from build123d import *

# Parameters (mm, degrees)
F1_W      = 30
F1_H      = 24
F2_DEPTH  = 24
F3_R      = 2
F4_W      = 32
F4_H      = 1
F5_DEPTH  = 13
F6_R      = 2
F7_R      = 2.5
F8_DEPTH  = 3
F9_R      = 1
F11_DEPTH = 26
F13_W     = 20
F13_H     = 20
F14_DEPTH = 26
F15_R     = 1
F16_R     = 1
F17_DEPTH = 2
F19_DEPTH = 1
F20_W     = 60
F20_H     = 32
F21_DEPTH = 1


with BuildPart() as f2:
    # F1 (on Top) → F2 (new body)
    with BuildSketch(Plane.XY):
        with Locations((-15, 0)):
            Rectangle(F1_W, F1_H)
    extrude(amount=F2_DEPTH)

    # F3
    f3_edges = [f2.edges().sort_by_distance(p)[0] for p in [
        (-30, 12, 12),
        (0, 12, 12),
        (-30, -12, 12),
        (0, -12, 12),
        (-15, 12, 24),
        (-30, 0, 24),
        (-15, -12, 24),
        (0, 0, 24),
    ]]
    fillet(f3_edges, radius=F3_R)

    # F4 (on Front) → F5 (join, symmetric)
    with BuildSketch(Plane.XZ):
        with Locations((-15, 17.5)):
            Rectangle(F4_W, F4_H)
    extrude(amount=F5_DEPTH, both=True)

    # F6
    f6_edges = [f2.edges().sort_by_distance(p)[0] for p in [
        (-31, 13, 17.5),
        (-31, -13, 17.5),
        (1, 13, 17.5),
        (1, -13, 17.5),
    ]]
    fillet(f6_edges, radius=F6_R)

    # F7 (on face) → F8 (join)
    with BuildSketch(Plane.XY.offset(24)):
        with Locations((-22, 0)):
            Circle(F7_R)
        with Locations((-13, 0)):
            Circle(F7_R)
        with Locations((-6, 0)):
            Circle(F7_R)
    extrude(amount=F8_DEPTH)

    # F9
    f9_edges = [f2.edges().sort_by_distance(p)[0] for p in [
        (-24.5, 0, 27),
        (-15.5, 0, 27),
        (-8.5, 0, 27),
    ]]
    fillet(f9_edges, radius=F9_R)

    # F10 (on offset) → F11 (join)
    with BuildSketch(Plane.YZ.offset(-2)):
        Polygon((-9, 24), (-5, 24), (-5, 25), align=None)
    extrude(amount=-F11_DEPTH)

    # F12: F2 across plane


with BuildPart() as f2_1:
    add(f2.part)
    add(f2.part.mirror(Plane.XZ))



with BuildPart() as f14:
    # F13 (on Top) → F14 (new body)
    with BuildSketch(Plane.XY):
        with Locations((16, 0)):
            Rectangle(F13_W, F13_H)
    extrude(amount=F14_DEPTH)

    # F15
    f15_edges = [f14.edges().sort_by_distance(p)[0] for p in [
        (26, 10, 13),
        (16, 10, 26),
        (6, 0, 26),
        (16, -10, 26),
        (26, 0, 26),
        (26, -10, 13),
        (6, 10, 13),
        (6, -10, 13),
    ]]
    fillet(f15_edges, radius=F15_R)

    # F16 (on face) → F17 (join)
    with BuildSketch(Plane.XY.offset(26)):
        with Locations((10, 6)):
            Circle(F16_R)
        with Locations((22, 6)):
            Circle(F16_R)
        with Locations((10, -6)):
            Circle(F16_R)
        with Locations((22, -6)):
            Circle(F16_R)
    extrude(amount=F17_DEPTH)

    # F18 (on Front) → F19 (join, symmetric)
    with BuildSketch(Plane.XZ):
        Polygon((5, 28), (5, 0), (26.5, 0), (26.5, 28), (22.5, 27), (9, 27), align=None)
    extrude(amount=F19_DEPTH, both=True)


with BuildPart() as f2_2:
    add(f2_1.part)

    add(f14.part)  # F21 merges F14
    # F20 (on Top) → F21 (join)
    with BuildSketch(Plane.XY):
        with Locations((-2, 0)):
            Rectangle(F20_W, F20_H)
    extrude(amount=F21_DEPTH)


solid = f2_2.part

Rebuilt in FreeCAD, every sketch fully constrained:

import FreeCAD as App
import Part
import Sketcher

V = App.Vector
Q = App.Units.Quantity


def edges_at(feature, points):
    """Names of the edges that pass closest to the given points."""
    edges = feature.Shape.Edges
    near = lambda p: min(range(len(edges)), key=lambda i: edges[i].distToShape(Part.Vertex(*p))[0])
    return sorted({f"Edge{near(p) + 1}" for p in points})


def add_polygon(sketch, points):
    """Adds a closed chain of lines whose ends are joined by coincident constraints."""
    first, n = sketch.GeometryCount, len(points)
    for a, b in zip(points, points[1:] + points[:1]):
        sketch.addGeometry(Part.LineSegment(App.Vector(*a, 0), App.Vector(*b, 0)), False)
    for i in range(n):
        sketch.addConstraint(Sketcher.Constraint("Coincident", first + i, 2, first + (i + 1) % n, 1))

doc = App.newDocument("Part")
body = doc.addObject("PartDesign::Body", "Body")

# Sketch on XY plane
sketch1 = doc.addObject("Sketcher::SketchObject", "Sketch")
body.addObject(sketch1)
sketch1.AttachmentSupport = (doc.XY_Plane, [""])
sketch1.MapMode = "FlatFace"
add_polygon(sketch1, [(-30, 12), (-30, -12), (0, -12), (0, 12)])  # lines 0-3
sketch1.addConstraint(Sketcher.Constraint("Vertical", 0))
sketch1.addConstraint(Sketcher.Constraint("Horizontal", 1))
sketch1.addConstraint(Sketcher.Constraint("Vertical", 2))
sketch1.addConstraint(Sketcher.Constraint("Horizontal", 3))
sketch1.addConstraint(Sketcher.Constraint("Symmetric", 1, 2, 2, 2, -1, 1))
sketch1.addConstraint(Sketcher.Constraint("DistanceX", 1, 1, 1, 2, Q("30 mm")))
sketch1.addConstraint(Sketcher.Constraint("DistanceY", 0, 2, 0, 1, Q("24 mm")))
pad1 = doc.addObject("PartDesign::Pad", "Pad")
body.addObject(pad1)
pad1.Profile = sketch1
pad1.Length = 24
doc.recompute()

fillet = doc.addObject("PartDesign::Fillet", "Fillet")
body.addObject(fillet)
fillet.Base = (pad1, edges_at(pad1, [
    (-30, 12, 12),
    (0, 12, 12),
    (-30, -12, 12),
    (0, -12, 12),
    (-15, 12, 24),
    (-30, 0, 24),
    (-15, -12, 24),
    (0, 0, 24),
]))
fillet.Radius = 2

# Sketch on XZ plane
sketch2 = doc.addObject("Sketcher::SketchObject", "Sketch001")
body.addObject(sketch2)
sketch2.AttachmentSupport = (doc.XZ_Plane, [""])
sketch2.MapMode = "FlatFace"
add_polygon(sketch2, [(-31, 18), (-31, 17), (1, 17), (1, 18)])  # lines 0-3
sketch2.addConstraint(Sketcher.Constraint("Vertical", 0))
sketch2.addConstraint(Sketcher.Constraint("Horizontal", 1))
sketch2.addConstraint(Sketcher.Constraint("Vertical", 2))
sketch2.addConstraint(Sketcher.Constraint("Horizontal", 3))
sketch2.addConstraint(Sketcher.Constraint("DistanceX", 1, 1, 1, 2, Q("32 mm")))
sketch2.addConstraint(Sketcher.Constraint("DistanceY", 0, 2, 0, 1, Q("1 mm")))
sketch2.addConstraint(Sketcher.Constraint("DistanceX", 0, 2, -1, 1, Q("31 mm")))
sketch2.addConstraint(Sketcher.Constraint("DistanceY", -1, 1, 0, 2, Q("17 mm")))
pad2 = doc.addObject("PartDesign::Pad", "Pad001")
body.addObject(pad2)
pad2.Profile = sketch2
pad2.Length = 26
pad2.Midplane = True
doc.recompute()

fillet2 = doc.addObject("PartDesign::Fillet", "Fillet001")
body.addObject(fillet2)
fillet2.Base = (pad2, edges_at(pad2, [
    (-31, 13, 17.5),
    (-31, -13, 17.5),
    (1, 13, 17.5),
    (1, -13, 17.5),
]))
fillet2.Radius = 2

# Sketch on XY plane
sketch3 = doc.addObject("Sketcher::SketchObject", "Sketch002")
body.addObject(sketch3)
sketch3.AttachmentSupport = (doc.XY_Plane, [""])
sketch3.MapMode = "FlatFace"
sketch3.AttachmentOffset = App.Placement(V(0, 0, 24), App.Rotation())
sketch3.addGeometry(Part.Circle(V(-22, 0, 0), V(0, 0, 1), 2.5), False)
sketch3.addGeometry(Part.Circle(V(-13, 0, 0), V(0, 0, 1), 2.5), False)
sketch3.addGeometry(Part.Circle(V(-6, 0, 0), V(0, 0, 1), 2.5), False)
sketch3.addConstraint(Sketcher.Constraint("Equal", 0, 1))
sketch3.addConstraint(Sketcher.Constraint("Equal", 1, 2))
sketch3.addConstraint(Sketcher.Constraint("PointOnObject", 0, 3, -1))
sketch3.addConstraint(Sketcher.Constraint("PointOnObject", 1, 3, -1))
sketch3.addConstraint(Sketcher.Constraint("PointOnObject", 2, 3, -1))
sketch3.addConstraint(Sketcher.Constraint("Diameter", 0, Q("5 mm")))
sketch3.addConstraint(Sketcher.Constraint("DistanceX", 0, 3, -1, 1, Q("22 mm")))
sketch3.addConstraint(Sketcher.Constraint("DistanceX", 1, 3, -1, 1, Q("13 mm")))
sketch3.addConstraint(Sketcher.Constraint("DistanceX", 2, 3, -1, 1, Q("6 mm")))
pad3 = doc.addObject("PartDesign::Pad", "Pad002")
body.addObject(pad3)
pad3.Profile = sketch3
pad3.Length = 3
doc.recompute()

fillet3 = doc.addObject("PartDesign::Fillet", "Fillet002")
body.addObject(fillet3)
fillet3.Base = (pad3, edges_at(pad3, [(-24.5, 0, 27), (-15.5, 0, 27), (-8.5, 0, 27)]))
fillet3.Radius = 1

# Sketch on YZ plane
sketch4 = doc.addObject("Sketcher::SketchObject", "Sketch003")
body.addObject(sketch4)
sketch4.AttachmentSupport = (doc.YZ_Plane, [""])
sketch4.MapMode = "FlatFace"
sketch4.AttachmentOffset = App.Placement(V(0, 0, -2), App.Rotation())
add_polygon(sketch4, [(-9, 24), (-5, 24), (-5, 25)])  # lines 0-2
sketch4.addConstraint(Sketcher.Constraint("Horizontal", 0))
sketch4.addConstraint(Sketcher.Constraint("Vertical", 1))
sketch4.addConstraint(Sketcher.Constraint("DistanceX", 0, 1, 0, 2, Q("4 mm")))
sketch4.addConstraint(Sketcher.Constraint("DistanceY", 1, 1, 1, 2, Q("1 mm")))
sketch4.addConstraint(Sketcher.Constraint("DistanceX", 0, 2, -1, 1, Q("5 mm")))
sketch4.addConstraint(Sketcher.Constraint("DistanceY", -1, 1, 0, 2, Q("24 mm")))
pad4 = doc.addObject("PartDesign::Pad", "Pad003")
body.addObject(pad4)
pad4.Profile = sketch4
pad4.Length = 26
pad4.Reversed = True
body2 = doc.addObject("PartDesign::Body", "Body001")
doc.recompute()

body2.BaseFeature = body
doc.recompute()

mirroring = doc.addObject("Part::Mirroring", "Mirroring")
mirroring.Source = body
mirroring.Base = V(0, 0, 0)
mirroring.Normal = V(0, -1, 0)
body3 = doc.addObject("PartDesign::Body", "Body002")
body3.BaseFeature = mirroring
boolean = doc.addObject("PartDesign::Boolean", "Boolean")
body2.addObject(boolean)
boolean.Type = "Fuse"
boolean.addObjects([body3])
doc.recompute()
body4 = doc.addObject("PartDesign::Body", "Body003")

# Sketch on XY plane
sketch5 = doc.addObject("Sketcher::SketchObject", "Sketch004")
body4.addObject(sketch5)
sketch5.AttachmentSupport = (doc.getObject("XY_Plane003"), [""])
sketch5.MapMode = "FlatFace"
add_polygon(sketch5, [(6, 10), (6, -10), (26, -10), (26, 10)])  # lines 0-3
sketch5.addConstraint(Sketcher.Constraint("Vertical", 0))
sketch5.addConstraint(Sketcher.Constraint("Horizontal", 1))
sketch5.addConstraint(Sketcher.Constraint("Vertical", 2))
sketch5.addConstraint(Sketcher.Constraint("Horizontal", 3))
sketch5.addConstraint(Sketcher.Constraint("Equal", 3, 0))
sketch5.addConstraint(Sketcher.Constraint("DistanceX", 1, 1, 1, 2, Q("20 mm")))
sketch5.addConstraint(Sketcher.Constraint("DistanceX", -1, 1, 0, 2, Q("6 mm")))
sketch5.addConstraint(Sketcher.Constraint("DistanceY", 0, 2, -1, 1, Q("10 mm")))
pad5 = doc.addObject("PartDesign::Pad", "Pad004")
body4.addObject(pad5)
pad5.Profile = sketch5
pad5.Length = 26
doc.recompute()

fillet4 = doc.addObject("PartDesign::Fillet", "Fillet003")
body4.addObject(fillet4)
fillet4.Base = (pad5, edges_at(pad5, [
    (26, 10, 13),
    (16, 10, 26),
    (6, 0, 26),
    (16, -10, 26),
    (26, 0, 26),
    (26, -10, 13),
    (6, 10, 13),
    (6, -10, 13),
]))
fillet4.Radius = 1

# Sketch on XY plane
sketch6 = doc.addObject("Sketcher::SketchObject", "Sketch005")
body4.addObject(sketch6)
sketch6.AttachmentSupport = (doc.getObject("XY_Plane003"), [""])
sketch6.MapMode = "FlatFace"
sketch6.AttachmentOffset = App.Placement(V(0, 0, 26), App.Rotation())
sketch6.addGeometry(Part.Circle(V(10, 6, 0), V(0, 0, 1), 1), False)
sketch6.addGeometry(Part.Circle(V(22, 6, 0), V(0, 0, 1), 1), False)
sketch6.addGeometry(Part.Circle(V(10, -6, 0), V(0, 0, 1), 1), False)
sketch6.addGeometry(Part.Circle(V(22, -6, 0), V(0, 0, 1), 1), False)
sketch6.addConstraint(Sketcher.Constraint("Equal", 0, 1))
sketch6.addConstraint(Sketcher.Constraint("Equal", 1, 2))
sketch6.addConstraint(Sketcher.Constraint("Equal", 2, 3))
sketch6.addConstraint(Sketcher.Constraint("Symmetric", 0, 3, 2, 3, -1))
sketch6.addConstraint(Sketcher.Constraint("Symmetric", 1, 3, 3, 3, -1))
sketch6.addConstraint(Sketcher.Constraint("Horizontal", 0, 3, 1, 3))
sketch6.addConstraint(Sketcher.Constraint("Diameter", 0, Q("2 mm")))
sketch6.addConstraint(Sketcher.Constraint("DistanceX", -1, 1, 0, 3, Q("10 mm")))
sketch6.addConstraint(Sketcher.Constraint("DistanceY", -1, 1, 0, 3, Q("6 mm")))
sketch6.addConstraint(Sketcher.Constraint("DistanceX", -1, 1, 1, 3, Q("22 mm")))
pad6 = doc.addObject("PartDesign::Pad", "Pad005")
body4.addObject(pad6)
pad6.Profile = sketch6
pad6.Length = 2

# Sketch on XZ plane
sketch7 = doc.addObject("Sketcher::SketchObject", "Sketch006")
body4.addObject(sketch7)
sketch7.AttachmentSupport = (doc.getObject("XZ_Plane003"), [""])
sketch7.MapMode = "FlatFace"
add_polygon(sketch7, [(5, 28), (5, 0), (26.5, 0), (26.5, 28), (22.5, 27), (9, 27)])  # lines 0-5
sketch7.addConstraint(Sketcher.Constraint("Vertical", 0))
sketch7.addConstraint(Sketcher.Constraint("Horizontal", 1))
sketch7.addConstraint(Sketcher.Constraint("Vertical", 2))
sketch7.addConstraint(Sketcher.Constraint("Horizontal", 4))
sketch7.addConstraint(Sketcher.Constraint("PointOnObject", 0, 2, -1))
sketch7.addConstraint(Sketcher.Constraint("Horizontal", 2, 2, 5, 2))
sketch7.addConstraint(Sketcher.Constraint("Equal", 3, 5))
sketch7.addConstraint(Sketcher.Constraint("DistanceY", 0, 2, 0, 1, Q("28 mm")))
sketch7.addConstraint(Sketcher.Constraint("DistanceX", 1, 1, 1, 2, Q("21.5 mm")))
sketch7.addConstraint(Sketcher.Constraint("DistanceX", 4, 2, 4, 1, Q("13.5 mm")))
sketch7.addConstraint(Sketcher.Constraint("DistanceX", -1, 1, 0, 2, Q("5 mm")))
sketch7.addConstraint(Sketcher.Constraint("DistanceY", -1, 1, 3, 2, Q("27 mm")))
pad7 = doc.addObject("PartDesign::Pad", "Pad006")
body4.addObject(pad7)
pad7.Profile = sketch7
pad7.Length = 2
pad7.Midplane = True
body2.AllowCompound = True
doc.recompute()

boolean2 = doc.addObject("PartDesign::Boolean", "Boolean001")
body2.addObject(boolean2)
boolean2.Type = "Fuse"
boolean2.addObjects([body4])

# Sketch on XY plane
sketch8 = doc.addObject("Sketcher::SketchObject", "Sketch007")
body2.addObject(sketch8)
sketch8.AttachmentSupport = (doc.getObject("XY_Plane001"), [""])
sketch8.MapMode = "FlatFace"
add_polygon(sketch8, [(-32, 16), (-32, -16), (28, -16), (28, 16)])  # lines 0-3
sketch8.addConstraint(Sketcher.Constraint("Vertical", 0))
sketch8.addConstraint(Sketcher.Constraint("Horizontal", 1))
sketch8.addConstraint(Sketcher.Constraint("Vertical", 2))
sketch8.addConstraint(Sketcher.Constraint("Horizontal", 3))
sketch8.addConstraint(Sketcher.Constraint("DistanceX", 1, 1, 1, 2, Q("60 mm")))
sketch8.addConstraint(Sketcher.Constraint("DistanceY", 0, 2, 0, 1, Q("32 mm")))
sketch8.addConstraint(Sketcher.Constraint("DistanceX", 0, 2, -1, 1, Q("32 mm")))
sketch8.addConstraint(Sketcher.Constraint("DistanceY", 0, 2, -1, 1, Q("16 mm")))
pad8 = doc.addObject("PartDesign::Pad", "Pad007")
body2.addObject(pad8)
pad8.Profile = sketch8
pad8.Length = 1
mirroring.Visibility = False

doc.recompute()
